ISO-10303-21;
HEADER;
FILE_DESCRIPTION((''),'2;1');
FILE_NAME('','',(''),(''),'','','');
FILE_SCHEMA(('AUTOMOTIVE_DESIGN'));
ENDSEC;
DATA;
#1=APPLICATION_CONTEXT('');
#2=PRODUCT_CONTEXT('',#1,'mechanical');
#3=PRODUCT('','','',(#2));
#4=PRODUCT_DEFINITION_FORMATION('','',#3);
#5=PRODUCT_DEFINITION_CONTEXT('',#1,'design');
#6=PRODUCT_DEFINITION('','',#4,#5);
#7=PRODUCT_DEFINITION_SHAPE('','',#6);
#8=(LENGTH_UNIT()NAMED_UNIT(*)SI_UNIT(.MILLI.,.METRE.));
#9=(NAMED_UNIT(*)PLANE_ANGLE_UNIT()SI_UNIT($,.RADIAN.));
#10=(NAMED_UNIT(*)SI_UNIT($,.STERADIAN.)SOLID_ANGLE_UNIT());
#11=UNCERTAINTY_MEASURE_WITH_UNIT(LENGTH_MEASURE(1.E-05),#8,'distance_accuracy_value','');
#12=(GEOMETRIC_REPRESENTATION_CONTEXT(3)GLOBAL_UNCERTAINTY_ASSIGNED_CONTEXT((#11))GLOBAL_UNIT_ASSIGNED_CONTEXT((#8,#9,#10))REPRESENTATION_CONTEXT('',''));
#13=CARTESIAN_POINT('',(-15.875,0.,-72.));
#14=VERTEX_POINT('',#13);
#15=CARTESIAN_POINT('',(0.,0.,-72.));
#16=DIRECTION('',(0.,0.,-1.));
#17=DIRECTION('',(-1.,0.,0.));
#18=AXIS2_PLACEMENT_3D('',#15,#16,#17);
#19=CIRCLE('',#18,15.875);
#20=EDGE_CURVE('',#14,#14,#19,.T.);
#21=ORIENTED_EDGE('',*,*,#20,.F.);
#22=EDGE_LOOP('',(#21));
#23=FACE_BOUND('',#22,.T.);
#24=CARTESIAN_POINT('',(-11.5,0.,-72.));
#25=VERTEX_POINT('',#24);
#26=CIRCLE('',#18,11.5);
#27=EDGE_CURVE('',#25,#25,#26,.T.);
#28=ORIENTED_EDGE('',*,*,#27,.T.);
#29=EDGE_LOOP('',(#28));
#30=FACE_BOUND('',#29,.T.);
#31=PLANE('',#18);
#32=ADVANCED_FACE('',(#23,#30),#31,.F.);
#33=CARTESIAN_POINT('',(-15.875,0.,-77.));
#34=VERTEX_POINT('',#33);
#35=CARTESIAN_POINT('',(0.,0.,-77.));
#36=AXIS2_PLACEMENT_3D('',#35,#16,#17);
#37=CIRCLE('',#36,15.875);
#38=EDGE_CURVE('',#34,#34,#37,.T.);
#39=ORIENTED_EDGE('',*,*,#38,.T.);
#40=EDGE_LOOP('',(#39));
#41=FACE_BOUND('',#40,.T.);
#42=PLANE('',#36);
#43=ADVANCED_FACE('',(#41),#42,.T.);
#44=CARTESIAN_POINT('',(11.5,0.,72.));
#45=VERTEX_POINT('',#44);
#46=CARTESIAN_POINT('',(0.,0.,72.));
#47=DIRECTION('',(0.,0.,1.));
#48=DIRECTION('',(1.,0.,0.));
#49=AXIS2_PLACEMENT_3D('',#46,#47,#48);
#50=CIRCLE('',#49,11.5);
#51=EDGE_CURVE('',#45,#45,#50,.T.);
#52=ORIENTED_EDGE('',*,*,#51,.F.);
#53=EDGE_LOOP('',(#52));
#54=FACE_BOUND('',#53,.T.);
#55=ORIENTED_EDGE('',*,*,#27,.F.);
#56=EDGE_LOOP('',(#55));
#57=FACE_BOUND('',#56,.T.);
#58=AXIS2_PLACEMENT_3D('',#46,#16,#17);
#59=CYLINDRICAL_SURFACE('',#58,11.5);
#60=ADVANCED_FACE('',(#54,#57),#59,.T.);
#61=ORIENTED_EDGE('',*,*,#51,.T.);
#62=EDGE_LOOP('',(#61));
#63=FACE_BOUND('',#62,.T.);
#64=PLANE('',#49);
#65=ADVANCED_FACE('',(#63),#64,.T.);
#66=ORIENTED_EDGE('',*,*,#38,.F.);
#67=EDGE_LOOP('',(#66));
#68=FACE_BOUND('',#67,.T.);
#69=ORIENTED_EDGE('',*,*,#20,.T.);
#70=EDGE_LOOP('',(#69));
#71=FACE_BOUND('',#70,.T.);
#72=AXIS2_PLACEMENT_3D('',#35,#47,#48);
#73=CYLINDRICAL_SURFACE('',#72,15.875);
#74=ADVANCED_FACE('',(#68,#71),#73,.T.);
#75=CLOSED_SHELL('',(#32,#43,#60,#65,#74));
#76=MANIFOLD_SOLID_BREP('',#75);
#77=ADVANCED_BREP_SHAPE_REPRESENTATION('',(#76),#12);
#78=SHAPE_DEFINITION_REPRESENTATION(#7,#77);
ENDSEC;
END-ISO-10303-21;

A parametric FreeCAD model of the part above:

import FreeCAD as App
import Part
import Sketcher

doc = App.newDocument("Part")
body = doc.addObject("PartDesign::Body", "Body")

sketch1 = doc.addObject("Sketcher::SketchObject", "Sketch")
body.addObject(sketch1)
sketch1.AttachmentSupport = (doc.XY_Plane, [""])
sketch1.MapMode = "FlatFace"
sketch1.addGeometry(Part.Circle(App.Vector(0, 0, 0), App.Vector(0, 0, 1), 12), False)
sketch1.addConstraint([
    Sketcher.Constraint("Coincident", 0, 3, -1, 1),
    Sketcher.Constraint("Diameter", 0, 23.0),
])
pad1 = doc.addObject("PartDesign::Pad", "Pad")
body.addObject(pad1)
pad1.Profile = sketch1
pad1.Length = 144
pad1.Midplane = True

sketch2 = doc.addObject("Sketcher::SketchObject", "Sketch001")
body.addObject(sketch2)
sketch2.AttachmentSupport = (doc.XY_Plane, [""])
sketch2.MapMode = "FlatFace"
sketch2.AttachmentOffset = App.Placement(App.Vector(0, 0, -72), App.Rotation())
sketch2.addGeometry(Part.Circle(App.Vector(0, 0, 0), App.Vector(0, 0, 1), 16), False)
sketch2.addConstraint([
    Sketcher.Constraint("Coincident", 0, 3, -1, 1),
    Sketcher.Constraint("Diameter", 0, 31.75),
])
pad2 = doc.addObject("PartDesign::Pad", "Pad001")
body.addObject(pad2)
pad2.Profile = sketch2
pad2.Length = 5
pad2.Reversed = True

doc.recompute()
